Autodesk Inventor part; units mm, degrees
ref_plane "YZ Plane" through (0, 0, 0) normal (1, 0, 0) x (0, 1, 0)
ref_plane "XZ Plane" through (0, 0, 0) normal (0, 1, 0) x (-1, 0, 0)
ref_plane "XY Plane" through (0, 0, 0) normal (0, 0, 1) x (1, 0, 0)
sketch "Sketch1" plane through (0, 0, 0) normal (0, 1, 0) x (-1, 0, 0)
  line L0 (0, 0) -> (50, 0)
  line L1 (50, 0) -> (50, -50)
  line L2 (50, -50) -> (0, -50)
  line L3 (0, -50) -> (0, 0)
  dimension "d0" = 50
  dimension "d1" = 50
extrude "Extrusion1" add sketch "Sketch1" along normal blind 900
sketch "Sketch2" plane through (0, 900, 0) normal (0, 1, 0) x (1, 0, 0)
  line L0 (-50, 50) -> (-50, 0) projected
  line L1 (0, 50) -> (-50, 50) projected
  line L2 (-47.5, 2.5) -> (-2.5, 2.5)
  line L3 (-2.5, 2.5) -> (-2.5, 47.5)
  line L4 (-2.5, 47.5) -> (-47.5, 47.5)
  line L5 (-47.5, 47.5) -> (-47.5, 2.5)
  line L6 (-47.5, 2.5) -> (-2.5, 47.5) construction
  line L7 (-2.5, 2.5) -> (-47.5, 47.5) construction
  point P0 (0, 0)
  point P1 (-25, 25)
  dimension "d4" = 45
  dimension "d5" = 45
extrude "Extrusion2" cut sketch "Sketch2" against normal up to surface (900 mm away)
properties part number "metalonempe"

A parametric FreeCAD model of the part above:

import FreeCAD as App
import Part
import Sketcher

doc = App.newDocument("Part")
body = doc.addObject("PartDesign::Body", "Body")

sketch1 = body.newObject("Sketcher::SketchObject", "Sketch")
sketch1.AttachmentSupport = (doc.getObject("XZ_Plane"), [""])
sketch1.MapMode = "FlatFace"
sketch1.addGeometry([
    Part.LineSegment(App.Vector(-50, 0, 0), App.Vector(0, 0, 0)),
    Part.LineSegment(App.Vector(0, 0, 0), App.Vector(0, -50, 0)),
    Part.LineSegment(App.Vector(0, -50, 0), App.Vector(-50, -50, 0)),
    Part.LineSegment(App.Vector(-50, -50, 0), App.Vector(-50, 0, 0)),
], False)
sketch1.addConstraint([
    Sketcher.Constraint("Coincident", 0, 2, 1, 1),
    Sketcher.Constraint("Coincident", 1, 2, 2, 1),
    Sketcher.Constraint("Coincident", 2, 2, 3, 1),
    Sketcher.Constraint("Coincident", 3, 2, 0, 1),
    Sketcher.Constraint("Horizontal", 0),
    Sketcher.Constraint("Vertical", 1),
    Sketcher.Constraint("Horizontal", 2),
    Sketcher.Constraint("Vertical", 3),
    Sketcher.Constraint("Coincident", 0, 2, -1, 1),
    Sketcher.Constraint("Equal", 2, 1),
    Sketcher.Constraint("DistanceX", 0, 1, 0, 2, 50.0),
])
pad1 = body.newObject("PartDesign::Pad", "Pad")
pad1.Profile = sketch1
pad1.Length = 900
pad1.Reversed = True

sketch2 = body.newObject("Sketcher::SketchObject", "Sketch001")
sketch2.AttachmentSupport = (doc.getObject("XZ_Plane"), [""])
sketch2.MapMode = "FlatFace"
sketch2.AttachmentOffset = App.Placement(App.Vector(0, 0, -900), App.Rotation())
sketch2.addGeometry([
    Part.LineSegment(App.Vector(-48, -48, 0), App.Vector(-48, -2, 0)),
    Part.LineSegment(App.Vector(-48, -2, 0), App.Vector(-2, -2, 0)),
    Part.LineSegment(App.Vector(-2, -2, 0), App.Vector(-2, -48, 0)),
    Part.LineSegment(App.Vector(-2, -48, 0), App.Vector(-48, -48, 0)),
], False)
sketch2.addConstraint([
    Sketcher.Constraint("Coincident", 0, 2, 1, 1),
    Sketcher.Constraint("Coincident", 1, 2, 2, 1),
    Sketcher.Constraint("Coincident", 2, 2, 3, 1),
    Sketcher.Constraint("Coincident", 3, 2, 0, 1),
    Sketcher.Constraint("Vertical", 0),
    Sketcher.Constraint("Horizontal", 1),
    Sketcher.Constraint("Vertical", 2),
    Sketcher.Constraint("Horizontal", 3),
    Sketcher.Constraint("Equal", 3, 0),
    Sketcher.Constraint("DistanceX", 1, 1, 1, 2, 45.0),
    Sketcher.Constraint("DistanceX", 0, 2, -1, 1, 47.5),
    Sketcher.Constraint("DistanceY", 0, 2, -1, 1, 2.5),
])
pocket1 = body.newObject("PartDesign::Pocket", "Pocket")
pocket1.Profile = sketch2
pocket1.Length = 900
pocket1.Reversed = True

doc.recompute()
